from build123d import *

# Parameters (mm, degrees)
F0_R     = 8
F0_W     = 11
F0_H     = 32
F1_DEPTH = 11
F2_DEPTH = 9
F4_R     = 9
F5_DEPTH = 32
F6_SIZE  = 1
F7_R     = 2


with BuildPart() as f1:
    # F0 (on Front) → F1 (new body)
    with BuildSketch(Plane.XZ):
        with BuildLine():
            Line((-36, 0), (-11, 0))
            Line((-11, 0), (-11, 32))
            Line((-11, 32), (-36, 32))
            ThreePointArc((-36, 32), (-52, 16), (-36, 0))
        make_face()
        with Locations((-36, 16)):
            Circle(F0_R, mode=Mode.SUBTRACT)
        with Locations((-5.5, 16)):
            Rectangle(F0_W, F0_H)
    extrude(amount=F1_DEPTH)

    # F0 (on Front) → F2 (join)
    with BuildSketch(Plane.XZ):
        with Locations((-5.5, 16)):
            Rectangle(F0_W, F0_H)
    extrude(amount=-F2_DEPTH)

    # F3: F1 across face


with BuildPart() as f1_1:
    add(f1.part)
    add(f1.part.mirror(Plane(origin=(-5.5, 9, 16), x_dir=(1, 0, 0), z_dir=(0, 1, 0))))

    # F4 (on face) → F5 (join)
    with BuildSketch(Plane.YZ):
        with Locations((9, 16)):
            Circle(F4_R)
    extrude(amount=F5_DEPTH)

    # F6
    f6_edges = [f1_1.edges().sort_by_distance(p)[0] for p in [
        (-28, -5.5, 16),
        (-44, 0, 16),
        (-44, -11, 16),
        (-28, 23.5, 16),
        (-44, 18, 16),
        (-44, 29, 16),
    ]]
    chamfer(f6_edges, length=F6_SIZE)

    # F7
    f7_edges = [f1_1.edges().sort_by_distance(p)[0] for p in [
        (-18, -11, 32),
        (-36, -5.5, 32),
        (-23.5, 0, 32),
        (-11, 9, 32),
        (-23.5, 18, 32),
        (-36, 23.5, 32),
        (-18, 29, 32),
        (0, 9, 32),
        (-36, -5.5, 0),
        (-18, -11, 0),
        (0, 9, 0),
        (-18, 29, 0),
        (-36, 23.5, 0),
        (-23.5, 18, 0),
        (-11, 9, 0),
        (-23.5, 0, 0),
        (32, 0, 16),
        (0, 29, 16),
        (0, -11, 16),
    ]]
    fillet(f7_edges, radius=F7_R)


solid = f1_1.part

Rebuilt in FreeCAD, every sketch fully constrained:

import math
import FreeCAD as App
import Part
import Sketcher


def edges_at(feature, points):
    """Names of the edges that pass closest to the given points."""
    edges = feature.Shape.Edges
    near = lambda p: min(range(len(edges)), key=lambda i: edges[i].distToShape(Part.Vertex(*p))[0])
    return sorted({f"Edge{near(p) + 1}" for p in points})

doc = App.newDocument("Part")
params = doc.addObject("Spreadsheet::Sheet", "Params")
for row, (alias, value) in enumerate([
    ("sketch1_diameter", "16 mm"),
    ("sketch1_radius", "16 mm"),
    ("sketch1_width", "36 mm"),
    ("pad1_length", "11 mm"),
    ("sketch2_width", "11 mm"),
    ("sketch2_height", "32 mm"),
    ("pad2_length", "9 mm"),
    ("sketch3_diameter", "18 mm"),
    ("pad3_length", "32 mm"),
    ("chamfer_size", "1 mm"),
    ("fillet_radius", "2 mm"),
], start=1):
    params.set(f"A{row}", alias)
    params.set(f"B{row}", "=" + value)
    params.setAlias(f"B{row}", alias)

body = doc.addObject("PartDesign::Body", "Body")

sketch1 = doc.addObject("Sketcher::SketchObject", "Sketch")
body.addObject(sketch1)
sketch1.AttachmentSupport = (doc.XZ_Plane, [""])
sketch1.MapMode = "FlatFace"
sketch1.addGeometry(Part.LineSegment(App.Vector(-36, 0, 0), App.Vector(0, 0, 0)), False)
sketch1.addGeometry(Part.LineSegment(App.Vector(0, 0, 0), App.Vector(0, 32, 0)), False)
sketch1.addGeometry(Part.LineSegment(App.Vector(0, 32, 0), App.Vector(-36, 32, 0)), False)
sketch1.addGeometry(Part.ArcOfCircle(Part.Circle(App.Vector(-36, 16, 0), App.Vector(0, 0, 1), 16), math.radians(90), math.radians(270)), False)
sketch1.addGeometry(Part.Circle(App.Vector(-36, 16, 0), App.Vector(0, 0, 1), 8), False)
sketch1.addConstraint(Sketcher.Constraint("Coincident", 0, 2, 1, 1))
sketch1.addConstraint(Sketcher.Constraint("Coincident", 1, 2, 2, 1))
sketch1.addConstraint(Sketcher.Constraint("Tangent", 2, 2, 3, 1))
sketch1.addConstraint(Sketcher.Constraint("Tangent", 3, 2, 0, 1))
sketch1.addConstraint(Sketcher.Constraint("Horizontal", 0))
sketch1.addConstraint(Sketcher.Constraint("Vertical", 1))
sketch1.addConstraint(Sketcher.Constraint("Horizontal", 2))
sketch1.addConstraint(Sketcher.Constraint("Coincident", 0, 2, -1, 1))
sketch1.addConstraint(Sketcher.Constraint("Coincident", 4, 3, 3, 3))
sketch1.addConstraint(Sketcher.Constraint("Diameter", 4, 16.0))
sketch1.addConstraint(Sketcher.Constraint("Radius", 3, 16.0))
sketch1.addConstraint(Sketcher.Constraint("DistanceX", 0, 1, 0, 2, 36.0))
sketch1.setExpression("Constraints[9]", "Params.sketch1_diameter")
sketch1.setExpression("Constraints[10]", "Params.sketch1_radius")
sketch1.setExpression("Constraints[11]", "Params.sketch1_width")
pad1 = doc.addObject("PartDesign::Pad", "Pad")
body.addObject(pad1)
pad1.Profile = sketch1
pad1.setExpression("Length", "Params.pad1_length")

sketch2 = doc.addObject("Sketcher::SketchObject", "Sketch001")
body.addObject(sketch2)
sketch2.AttachmentSupport = (doc.XZ_Plane, [""])
sketch2.MapMode = "FlatFace"
sketch2.addGeometry(Part.LineSegment(App.Vector(-11, 32, 0), App.Vector(-11, 0, 0)), False)
sketch2.addGeometry(Part.LineSegment(App.Vector(-11, 0, 0), App.Vector(0, 0, 0)), False)
sketch2.addGeometry(Part.LineSegment(App.Vector(0, 0, 0), App.Vector(0, 32, 0)), False)
sketch2.addGeometry(Part.LineSegment(App.Vector(0, 32, 0), App.Vector(-11, 32, 0)), False)
sketch2.addConstraint(Sketcher.Constraint("Coincident", 0, 2, 1, 1))
sketch2.addConstraint(Sketcher.Constraint("Coincident", 1, 2, 2, 1))
sketch2.addConstraint(Sketcher.Constraint("Coincident", 2, 2, 3, 1))
sketch2.addConstraint(Sketcher.Constraint("Coincident", 3, 2, 0, 1))
sketch2.addConstraint(Sketcher.Constraint("Vertical", 0))
sketch2.addConstraint(Sketcher.Constraint("Horizontal", 1))
sketch2.addConstraint(Sketcher.Constraint("Vertical", 2))
sketch2.addConstraint(Sketcher.Constraint("Horizontal", 3))
sketch2.addConstraint(Sketcher.Constraint("Coincident", 1, 2, -1, 1))
sketch2.addConstraint(Sketcher.Constraint("DistanceX", 1, 1, 1, 2, 11.0))
sketch2.addConstraint(Sketcher.Constraint("DistanceY", 0, 2, 0, 1, 32.0))
sketch2.setExpression("Constraints[9]", "Params.sketch2_width")
sketch2.setExpression("Constraints[10]", "Params.sketch2_height")
pad2 = doc.addObject("PartDesign::Pad", "Pad001")
body.addObject(pad2)
pad2.Profile = sketch2
pad2.setExpression("Length", "Params.pad2_length")
pad2.Reversed = True
body2 = doc.addObject("PartDesign::Body", "Body001")
doc.recompute()

body2.BaseFeature = body
doc.recompute()

mirroring = doc.addObject("Part::Mirroring", "Mirroring")
mirroring.Source = body
mirroring.Base = App.Vector(-5.5, 9, 16)
mirroring.Normal = App.Vector(0, 1, 0)
body3 = doc.addObject("PartDesign::Body", "Body002")
body3.BaseFeature = mirroring
boolean = doc.addObject("PartDesign::Boolean", "Boolean")
body2.addObject(boolean)
boolean.Type = "Fuse"
boolean.addObjects([body3])
doc.recompute()

sketch3 = doc.addObject("Sketcher::SketchObject", "Sketch002")
body2.addObject(sketch3)
sketch3.AttachmentSupport = (doc.getObject("YZ_Plane001"), [""])
sketch3.MapMode = "FlatFace"
sketch3.addGeometry(Part.Circle(App.Vector(9, 16, 0), App.Vector(0, 0, 1), 9), False)
sketch3.addConstraint(Sketcher.Constraint("Diameter", 0, 18.0))
sketch3.addConstraint(Sketcher.Constraint("DistanceX", -1, 1, 0, 3, 9.0))
sketch3.addConstraint(Sketcher.Constraint("DistanceY", -1, 1, 0, 3, 16.0))
sketch3.setExpression("Constraints[0]", "Params.sketch3_diameter")
pad3 = doc.addObject("PartDesign::Pad", "Pad002")
body2.addObject(pad3)
pad3.Profile = sketch3
pad3.setExpression("Length", "Params.pad3_length")
doc.recompute()

chamfer = doc.addObject("PartDesign::Chamfer", "Chamfer")
body2.addObject(chamfer)
chamfer.Base = (pad3, edges_at(pad3, [
    (-28, -5.5, 16),
    (-44, 0, 16),
    (-44, -11, 16),
    (-28, 23.5, 16),
    (-44, 18, 16),
    (-44, 29, 16),
]))
chamfer.setExpression("Size", "Params.chamfer_size")
doc.recompute()

fillet = doc.addObject("PartDesign::Fillet", "Fillet")
body2.addObject(fillet)
fillet.Base = (chamfer, edges_at(chamfer, [
    (-18, -11, 32),
    (-36, -5.5, 32),
    (-23.5, 0, 32),
    (-11, 9, 32),
    (-23.5, 18, 32),
    (-36, 23.5, 32),
    (-18, 29, 32),
    (0, 9, 32),
    (-36, -5.5, 0),
    (-18, -11, 0),
    (0, 9, 0),
    (-18, 29, 0),
    (-36, 23.5, 0),
    (-23.5, 18, 0),
    (-11, 9, 0),
    (-23.5, 0, 0),
    (32, 0, 16),
    (0, 29, 16),
    (0, -11, 16),
]))
fillet.setExpression("Radius", "Params.fillet_radius")
mirroring.Visibility = False

doc.recompute()
